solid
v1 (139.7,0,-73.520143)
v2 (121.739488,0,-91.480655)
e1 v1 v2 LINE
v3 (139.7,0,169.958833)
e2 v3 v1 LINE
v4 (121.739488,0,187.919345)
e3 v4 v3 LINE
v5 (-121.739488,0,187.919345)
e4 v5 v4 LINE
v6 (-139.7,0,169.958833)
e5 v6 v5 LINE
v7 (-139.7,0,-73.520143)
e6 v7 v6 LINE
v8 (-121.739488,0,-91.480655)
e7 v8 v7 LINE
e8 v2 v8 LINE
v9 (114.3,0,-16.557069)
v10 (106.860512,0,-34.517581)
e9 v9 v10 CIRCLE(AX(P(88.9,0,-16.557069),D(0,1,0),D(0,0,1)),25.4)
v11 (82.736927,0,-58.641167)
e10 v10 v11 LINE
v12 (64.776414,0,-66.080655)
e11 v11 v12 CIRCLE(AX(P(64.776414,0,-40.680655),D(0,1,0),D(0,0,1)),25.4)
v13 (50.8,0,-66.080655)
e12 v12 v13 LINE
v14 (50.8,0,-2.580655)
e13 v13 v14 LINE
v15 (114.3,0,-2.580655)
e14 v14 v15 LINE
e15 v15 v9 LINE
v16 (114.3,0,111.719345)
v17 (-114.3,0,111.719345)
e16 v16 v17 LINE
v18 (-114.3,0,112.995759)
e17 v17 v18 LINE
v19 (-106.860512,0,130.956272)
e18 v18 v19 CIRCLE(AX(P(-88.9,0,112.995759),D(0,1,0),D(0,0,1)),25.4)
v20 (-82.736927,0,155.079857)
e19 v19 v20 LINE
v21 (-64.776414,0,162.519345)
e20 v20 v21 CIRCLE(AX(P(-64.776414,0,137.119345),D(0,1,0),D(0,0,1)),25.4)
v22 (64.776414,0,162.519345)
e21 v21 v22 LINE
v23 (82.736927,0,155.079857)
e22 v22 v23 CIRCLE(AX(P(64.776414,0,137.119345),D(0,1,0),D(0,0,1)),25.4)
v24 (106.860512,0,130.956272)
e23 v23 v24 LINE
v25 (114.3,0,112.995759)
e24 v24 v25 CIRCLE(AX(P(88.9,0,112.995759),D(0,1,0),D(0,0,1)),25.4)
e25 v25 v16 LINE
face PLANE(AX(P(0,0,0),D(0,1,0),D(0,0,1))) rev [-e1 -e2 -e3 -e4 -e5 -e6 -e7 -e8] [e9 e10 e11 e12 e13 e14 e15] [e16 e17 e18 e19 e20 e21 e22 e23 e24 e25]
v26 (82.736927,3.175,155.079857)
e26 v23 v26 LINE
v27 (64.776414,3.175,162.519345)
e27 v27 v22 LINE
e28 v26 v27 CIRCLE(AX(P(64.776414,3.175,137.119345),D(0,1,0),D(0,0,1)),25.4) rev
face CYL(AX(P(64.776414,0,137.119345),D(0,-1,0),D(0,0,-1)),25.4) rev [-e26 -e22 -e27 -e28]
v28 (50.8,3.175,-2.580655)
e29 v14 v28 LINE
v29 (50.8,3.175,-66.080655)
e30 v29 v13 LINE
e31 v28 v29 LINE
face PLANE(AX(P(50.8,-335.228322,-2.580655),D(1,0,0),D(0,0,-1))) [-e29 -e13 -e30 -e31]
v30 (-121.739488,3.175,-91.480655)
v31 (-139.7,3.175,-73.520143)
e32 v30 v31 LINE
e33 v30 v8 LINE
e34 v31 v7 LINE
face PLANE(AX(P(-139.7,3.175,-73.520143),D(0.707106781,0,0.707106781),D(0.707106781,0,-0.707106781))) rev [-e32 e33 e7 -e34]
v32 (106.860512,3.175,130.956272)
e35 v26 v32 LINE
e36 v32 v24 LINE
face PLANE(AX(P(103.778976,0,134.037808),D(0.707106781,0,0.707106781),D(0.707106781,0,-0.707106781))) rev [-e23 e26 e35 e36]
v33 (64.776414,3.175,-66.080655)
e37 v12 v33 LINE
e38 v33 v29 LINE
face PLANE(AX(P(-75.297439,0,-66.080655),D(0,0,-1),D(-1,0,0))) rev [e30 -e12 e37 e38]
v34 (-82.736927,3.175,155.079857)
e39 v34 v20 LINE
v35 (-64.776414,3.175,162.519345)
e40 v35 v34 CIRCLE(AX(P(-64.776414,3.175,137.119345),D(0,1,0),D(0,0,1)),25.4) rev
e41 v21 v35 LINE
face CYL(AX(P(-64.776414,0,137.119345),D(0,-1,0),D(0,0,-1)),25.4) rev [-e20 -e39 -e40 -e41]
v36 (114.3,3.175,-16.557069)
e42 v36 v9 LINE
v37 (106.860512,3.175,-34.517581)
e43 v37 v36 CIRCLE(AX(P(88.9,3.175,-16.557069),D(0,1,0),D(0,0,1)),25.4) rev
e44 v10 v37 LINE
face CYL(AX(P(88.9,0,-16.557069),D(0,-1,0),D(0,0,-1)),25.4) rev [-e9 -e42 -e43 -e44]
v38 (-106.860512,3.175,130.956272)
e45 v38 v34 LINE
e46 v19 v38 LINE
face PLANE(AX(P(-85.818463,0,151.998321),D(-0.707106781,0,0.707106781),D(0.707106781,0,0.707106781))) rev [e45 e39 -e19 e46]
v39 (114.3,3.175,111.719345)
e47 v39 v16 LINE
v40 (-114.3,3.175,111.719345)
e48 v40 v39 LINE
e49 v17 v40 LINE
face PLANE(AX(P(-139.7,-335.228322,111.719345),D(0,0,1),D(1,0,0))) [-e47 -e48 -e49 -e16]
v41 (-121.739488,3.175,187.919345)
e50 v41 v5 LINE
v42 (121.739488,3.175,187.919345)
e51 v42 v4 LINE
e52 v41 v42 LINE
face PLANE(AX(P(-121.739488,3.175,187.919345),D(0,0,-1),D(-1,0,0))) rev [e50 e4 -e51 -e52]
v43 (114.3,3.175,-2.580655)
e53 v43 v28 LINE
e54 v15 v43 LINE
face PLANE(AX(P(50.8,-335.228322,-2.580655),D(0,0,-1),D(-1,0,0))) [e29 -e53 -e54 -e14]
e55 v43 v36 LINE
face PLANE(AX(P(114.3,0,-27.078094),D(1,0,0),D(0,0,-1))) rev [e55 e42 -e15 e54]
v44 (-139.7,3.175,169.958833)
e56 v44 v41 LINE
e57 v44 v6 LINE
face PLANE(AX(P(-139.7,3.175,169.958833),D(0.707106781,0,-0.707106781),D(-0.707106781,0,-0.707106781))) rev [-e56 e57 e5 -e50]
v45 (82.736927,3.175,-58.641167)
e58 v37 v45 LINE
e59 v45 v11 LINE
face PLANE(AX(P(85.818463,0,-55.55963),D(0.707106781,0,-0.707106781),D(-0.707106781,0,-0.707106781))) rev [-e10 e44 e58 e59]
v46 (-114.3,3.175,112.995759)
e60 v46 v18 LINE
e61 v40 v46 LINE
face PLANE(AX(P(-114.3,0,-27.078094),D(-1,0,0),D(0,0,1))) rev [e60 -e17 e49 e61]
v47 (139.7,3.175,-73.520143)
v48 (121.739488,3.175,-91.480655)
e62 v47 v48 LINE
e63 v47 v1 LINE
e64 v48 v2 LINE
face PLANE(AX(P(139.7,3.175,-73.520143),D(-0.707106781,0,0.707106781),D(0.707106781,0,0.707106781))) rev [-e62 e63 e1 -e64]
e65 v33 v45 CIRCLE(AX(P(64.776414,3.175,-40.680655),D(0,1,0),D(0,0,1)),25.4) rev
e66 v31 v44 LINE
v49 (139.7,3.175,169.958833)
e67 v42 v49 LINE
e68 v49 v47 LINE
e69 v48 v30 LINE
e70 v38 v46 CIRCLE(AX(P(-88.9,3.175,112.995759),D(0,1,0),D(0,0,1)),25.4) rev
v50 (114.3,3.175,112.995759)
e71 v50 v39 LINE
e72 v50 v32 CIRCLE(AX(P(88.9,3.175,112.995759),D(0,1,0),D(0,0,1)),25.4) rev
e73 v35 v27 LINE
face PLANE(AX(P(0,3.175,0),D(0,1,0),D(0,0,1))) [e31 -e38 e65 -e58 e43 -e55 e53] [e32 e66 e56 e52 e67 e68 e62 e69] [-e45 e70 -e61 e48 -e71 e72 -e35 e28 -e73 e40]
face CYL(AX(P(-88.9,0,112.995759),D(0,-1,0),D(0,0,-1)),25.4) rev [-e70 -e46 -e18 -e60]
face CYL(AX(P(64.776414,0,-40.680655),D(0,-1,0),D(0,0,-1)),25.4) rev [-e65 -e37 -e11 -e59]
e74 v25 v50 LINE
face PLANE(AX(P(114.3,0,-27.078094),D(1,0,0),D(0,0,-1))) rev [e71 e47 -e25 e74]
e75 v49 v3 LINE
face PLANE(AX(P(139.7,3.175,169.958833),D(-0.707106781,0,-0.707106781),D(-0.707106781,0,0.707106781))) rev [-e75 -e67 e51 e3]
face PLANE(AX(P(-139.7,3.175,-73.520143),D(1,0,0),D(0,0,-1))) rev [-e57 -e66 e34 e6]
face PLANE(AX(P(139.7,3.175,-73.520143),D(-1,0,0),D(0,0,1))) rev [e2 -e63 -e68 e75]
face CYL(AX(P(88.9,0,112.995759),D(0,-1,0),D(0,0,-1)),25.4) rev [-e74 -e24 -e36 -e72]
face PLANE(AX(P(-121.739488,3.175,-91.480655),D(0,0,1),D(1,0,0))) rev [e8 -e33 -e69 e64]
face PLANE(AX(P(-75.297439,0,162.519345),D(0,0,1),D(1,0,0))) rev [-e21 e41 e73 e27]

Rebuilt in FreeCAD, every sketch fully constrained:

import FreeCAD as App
import Part
import Sketcher
from FreeCAD import Vector
Q = App.Units.Quantity


def edges_at(feature, points):
    """Names of the edges that pass closest to the given points."""
    edges = feature.Shape.Edges
    near = lambda p: min(range(len(edges)), key=lambda i: edges[i].distToShape(Part.Vertex(*p))[0])
    return sorted({f"Edge{near(p) + 1}" for p in points})

doc = App.newDocument("Part")
body = doc.addObject("PartDesign::Body", "Body")

# Sketch on XZ plane
sketch1 = doc.addObject("Sketcher::SketchObject", "Sketch")
body.addObject(sketch1)
sketch1.AttachmentSupport = (doc.XZ_Plane, [""])
sketch1.MapMode = "FlatFace"
sketch1.addGeometry(Part.LineSegment(Vector(-122, -91, 0), Vector(-140, -74, 0)), False)
sketch1.addGeometry(Part.LineSegment(Vector(-140, -74, 0), Vector(-140, 170, 0)), False)
sketch1.addGeometry(Part.LineSegment(Vector(-140, 170, 0), Vector(-122, 188, 0)), False)
sketch1.addGeometry(Part.LineSegment(Vector(-122, 188, 0), Vector(122, 188, 0)), False)
sketch1.addGeometry(Part.LineSegment(Vector(122, 188, 0), Vector(140, 170, 0)), False)
sketch1.addGeometry(Part.LineSegment(Vector(140, 170, 0), Vector(140, -74, 0)), False)
sketch1.addGeometry(Part.LineSegment(Vector(140, -74, 0), Vector(122, -91, 0)), False)
sketch1.addGeometry(Part.LineSegment(Vector(122, -91, 0), Vector(-122, -91, 0)), False)
sketch1.addConstraint(Sketcher.Constraint("Coincident", 0, 2, 1, 1))
sketch1.addConstraint(Sketcher.Constraint("Coincident", 1, 2, 2, 1))
sketch1.addConstraint(Sketcher.Constraint("Coincident", 2, 2, 3, 1))
sketch1.addConstraint(Sketcher.Constraint("Coincident", 3, 2, 4, 1))
sketch1.addConstraint(Sketcher.Constraint("Coincident", 4, 2, 5, 1))
sketch1.addConstraint(Sketcher.Constraint("Coincident", 5, 2, 6, 1))
sketch1.addConstraint(Sketcher.Constraint("Coincident", 6, 2, 7, 1))
sketch1.addConstraint(Sketcher.Constraint("Coincident", 7, 2, 0, 1))
sketch1.addConstraint(Sketcher.Constraint("Vertical", 1))
sketch1.addConstraint(Sketcher.Constraint("Horizontal", 3))
sketch1.addConstraint(Sketcher.Constraint("Vertical", 5))
sketch1.addConstraint(Sketcher.Constraint("Horizontal", 7))
sketch1.addConstraint(Sketcher.Constraint("Symmetric", 1, 2, 4, 2, -2))
sketch1.addConstraint(Sketcher.Constraint("Perpendicular", 0, 2))
sketch1.addConstraint(Sketcher.Constraint("Perpendicular", 2, 4))
sketch1.addConstraint(Sketcher.Constraint("Perpendicular", 4, 6))
sketch1.addConstraint(Sketcher.Constraint("Horizontal", 0, 2, 5, 2))
sketch1.addConstraint(Sketcher.Constraint("Vertical", 3, 2, 6, 2))
sketch1.addConstraint(Sketcher.Constraint("Vertical", 2, 2, 7, 2))
sketch1.addConstraint(Sketcher.Constraint("Equal", 7, 1))
sketch1.addConstraint(Sketcher.Constraint("Distance", 0, Q("1 in")))
sketch1.addConstraint(Sketcher.Constraint("DistanceX", 1, 2, 4, 2, Q("11 in")))
sketch1.addConstraint(Sketcher.Constraint("DistanceY", 0, 2, -1, 1, Q("73.520143 mm")))
pad1 = doc.addObject("PartDesign::Pad", "Pad")
body.addObject(pad1)
pad1.Profile = sketch1
pad1.Length = Q("0.125 in")
pad1.Reversed = True

# Sketch on XZ plane
sketch2 = doc.addObject("Sketcher::SketchObject", "Sketch001")
body.addObject(sketch2)
sketch2.AttachmentSupport = (doc.XZ_Plane, [""])
sketch2.MapMode = "FlatFace"
sketch2.AttachmentOffset = App.Placement(Vector(0, 0, -0.125 * 25.4), App.Rotation())
sketch2.addGeometry(Part.LineSegment(Vector(-104, -38, 0), Vector(-114, -27, 0)), False)
sketch2.addGeometry(Part.LineSegment(Vector(-114, -27, 0), Vector(-114, 124, 0)), False)
sketch2.addGeometry(Part.LineSegment(Vector(-114, 124, 0), Vector(-104, 134, 0)), False)
sketch2.addGeometry(Part.LineSegment(Vector(-104, 134, 0), Vector(-86, 152, 0)), False)
sketch2.addGeometry(Part.LineSegment(Vector(-86, 152, 0), Vector(-75, 163, 0)), False)
sketch2.addGeometry(Part.LineSegment(Vector(-75, 163, 0), Vector(75, 163, 0)), False)
sketch2.addGeometry(Part.LineSegment(Vector(75, 163, 0), Vector(86, 152, 0)), False)
sketch2.addGeometry(Part.LineSegment(Vector(86, 152, 0), Vector(104, 134, 0)), False)
sketch2.addGeometry(Part.LineSegment(Vector(104, 134, 0), Vector(114, 124, 0)), False)
sketch2.addGeometry(Part.LineSegment(Vector(114, 124, 0), Vector(114, -27, 0)), False)
sketch2.addGeometry(Part.LineSegment(Vector(114, -27, 0), Vector(104, -38, 0)), False)
sketch2.addGeometry(Part.LineSegment(Vector(104, -38, 0), Vector(86, -56, 0)), False)
sketch2.addGeometry(Part.LineSegment(Vector(86, -56, 0), Vector(75, -66, 0)), False)
sketch2.addGeometry(Part.LineSegment(Vector(75, -66, 0), Vector(-75, -66, 0)), False)
sketch2.addGeometry(Part.LineSegment(Vector(-75, -66, 0), Vector(-86, -56, 0)), False)
sketch2.addGeometry(Part.LineSegment(Vector(-86, -56, 0), Vector(-104, -38, 0)), False)
sketch2.addConstraint(Sketcher.Constraint("Coincident", 0, 2, 1, 1))
sketch2.addConstraint(Sketcher.Constraint("Coincident", 1, 2, 2, 1))
sketch2.addConstraint(Sketcher.Constraint("Coincident", 2, 2, 3, 1))
sketch2.addConstraint(Sketcher.Constraint("Coincident", 3, 2, 4, 1))
sketch2.addConstraint(Sketcher.Constraint("Coincident", 4, 2, 5, 1))
sketch2.addConstraint(Sketcher.Constraint("Coincident", 5, 2, 6, 1))
sketch2.addConstraint(Sketcher.Constraint("Coincident", 6, 2, 7, 1))
sketch2.addConstraint(Sketcher.Constraint("Coincident", 7, 2, 8, 1))
sketch2.addConstraint(Sketcher.Constraint("Coincident", 8, 2, 9, 1))
sketch2.addConstraint(Sketcher.Constraint("Coincident", 9, 2, 10, 1))
sketch2.addConstraint(Sketcher.Constraint("Coincident", 10, 2, 11, 1))
sketch2.addConstraint(Sketcher.Constraint("Coincident", 11, 2, 12, 1))
sketch2.addConstraint(Sketcher.Constraint("Coincident", 12, 2, 13, 1))
sketch2.addConstraint(Sketcher.Constraint("Coincident", 13, 2, 14, 1))
sketch2.addConstraint(Sketcher.Constraint("Coincident", 14, 2, 15, 1))
sketch2.addConstraint(Sketcher.Constraint("Coincident", 15, 2, 0, 1))
sketch2.addConstraint(Sketcher.Constraint("Vertical", 1))
sketch2.addConstraint(Sketcher.Constraint("Horizontal", 5))
sketch2.addConstraint(Sketcher.Constraint("Vertical", 9))
sketch2.addConstraint(Sketcher.Constraint("Horizontal", 13))
sketch2.addConstraint(Sketcher.Constraint("Symmetric", 3, 2, 6, 2, -2))
sketch2.addConstraint(Sketcher.Constraint("Symmetric", 2, 2, 7, 2, -2))
sketch2.addConstraint(Sketcher.Constraint("Symmetric", 1, 2, 8, 2, -2))
sketch2.addConstraint(Sketcher.Constraint("Symmetric", 11, 2, 14, 2, -2))
sketch2.addConstraint(Sketcher.Constraint("Symmetric", 10, 2, 15, 2, -2))
sketch2.addConstraint(Sketcher.Constraint("Perpendicular", 0, 2))
sketch2.addConstraint(Sketcher.Constraint("Parallel", 2, 3))
sketch2.addConstraint(Sketcher.Constraint("Parallel", 3, 4))
sketch2.addConstraint(Sketcher.Constraint("Perpendicular", 4, 6))
sketch2.addConstraint(Sketcher.Constraint("Parallel", 6, 7))
sketch2.addConstraint(Sketcher.Constraint("Perpendicular", 8, 10))
sketch2.addConstraint(Sketcher.Constraint("Parallel", 10, 11))
sketch2.addConstraint(Sketcher.Constraint("Parallel", 11, 12))
sketch2.addConstraint(Sketcher.Constraint("Perpendicular", 12, 14))
sketch2.addConstraint(Sketcher.Constraint("Vertical", 7, 2, 10, 2))
sketch2.addConstraint(Sketcher.Constraint("Vertical", 6, 2, 11, 2))
sketch2.addConstraint(Sketcher.Constraint("Vertical", 5, 2, 12, 2))
sketch2.addConstraint(Sketcher.Constraint("Equal", 13, 1))
sketch2.addConstraint(Sketcher.Constraint("Equal", 2, 4))
sketch2.addConstraint(Sketcher.Constraint("Distance", 3, Q("1 in")))
sketch2.addConstraint(Sketcher.Constraint("DistanceX", 0, 2, 9, 2, Q("9 in")))
sketch2.addConstraint(Sketcher.Constraint("DistanceX", 5, 1, 5, 2, Q("150.594878 mm")))
sketch2.addConstraint(Sketcher.Constraint("DistanceY", -1, 1, 2, 2, Q("134.037808 mm")))
pocket1 = doc.addObject("PartDesign::Pocket", "Pocket")
body.addObject(pocket1)
pocket1.Profile = sketch2
pocket1.Type = "ThroughAll"
pocket1.Reversed = True
doc.recompute()

fillet = doc.addObject("PartDesign::Fillet", "Fillet")
body.addObject(fillet)
fillet.Base = (pocket1, edges_at(pocket1, [
    (-75.297, 1.587, -66.081),
    (75.297, 1.587, -66.081),
    (114.3, 1.587, -27.078),
    (114.3, 1.587, 123.517),
    (75.297, 1.587, 162.519),
    (-75.297, 1.587, 162.519),
    (-114.3, 1.587, 123.517),
    (-114.3, 1.587, -27.078),
]))
fillet.Radius = Q("1 in")

# Sketch on XZ plane
sketch3 = doc.addObject("Sketcher::SketchObject", "Sketch002")
body.addObject(sketch3)
sketch3.AttachmentSupport = (doc.XZ_Plane, [""])
sketch3.MapMode = "FlatFace"
sketch3.AttachmentOffset = App.Placement(Vector(0, 0, -0.125 * 25.4), App.Rotation())
sketch3.addGeometry(Part.LineSegment(Vector(140, -3, 0), Vector(51, -3, 0)), False)
sketch3.addGeometry(Part.LineSegment(Vector(51, -3, 0), Vector(51, -74, 0)), False)
sketch3.addGeometry(Part.LineSegment(Vector(51, -74, 0), Vector(-140, -74, 0)), False)
sketch3.addGeometry(Part.LineSegment(Vector(-140, -74, 0), Vector(-140, 112, 0)), False)
sketch3.addGeometry(Part.LineSegment(Vector(-140, 112, 0), Vector(140, 112, 0)), False)
sketch3.addGeometry(Part.LineSegment(Vector(140, 112, 0), Vector(140, -3, 0)), False)
sketch3.addConstraint(Sketcher.Constraint("Coincident", 0, 2, 1, 1))
sketch3.addConstraint(Sketcher.Constraint("Coincident", 1, 2, 2, 1))
sketch3.addConstraint(Sketcher.Constraint("Coincident", 2, 2, 3, 1))
sketch3.addConstraint(Sketcher.Constraint("Coincident", 3, 2, 4, 1))
sketch3.addConstraint(Sketcher.Constraint("Coincident", 4, 2, 5, 1))
sketch3.addConstraint(Sketcher.Constraint("Coincident", 5, 2, 0, 1))
sketch3.addConstraint(Sketcher.Constraint("Horizontal", 0))
sketch3.addConstraint(Sketcher.Constraint("Vertical", 1))
sketch3.addConstraint(Sketcher.Constraint("Horizontal", 2))
sketch3.addConstraint(Sketcher.Constraint("Vertical", 3))
sketch3.addConstraint(Sketcher.Constraint("Horizontal", 4))
sketch3.addConstraint(Sketcher.Constraint("Vertical", 5))
sketch3.addConstraint(Sketcher.Constraint("DistanceX", 4, 1, 4, 2, Q("11 in")))
sketch3.addConstraint(Sketcher.Constraint("DistanceX", 0, 2, 0, 1, Q("3.5 in")))
sketch3.addConstraint(Sketcher.Constraint("DistanceY", 5, 2, 5, 1, Q("4.5 in")))
sketch3.addConstraint(Sketcher.Constraint("DistanceX", -1, 1, 0, 2, Q("2 in")))
sketch3.addConstraint(Sketcher.Constraint("DistanceY", 1, 2, 1, 1, Q("70.939488 mm")))
sketch3.addConstraint(Sketcher.Constraint("DistanceY", 0, 2, -1, 1, Q("2.580655 mm")))
pad2 = doc.addObject("PartDesign::Pad", "Pad001")
body.addObject(pad2)
pad2.Profile = sketch3
pad2.Length = Q("0.125 in")

doc.recompute()
